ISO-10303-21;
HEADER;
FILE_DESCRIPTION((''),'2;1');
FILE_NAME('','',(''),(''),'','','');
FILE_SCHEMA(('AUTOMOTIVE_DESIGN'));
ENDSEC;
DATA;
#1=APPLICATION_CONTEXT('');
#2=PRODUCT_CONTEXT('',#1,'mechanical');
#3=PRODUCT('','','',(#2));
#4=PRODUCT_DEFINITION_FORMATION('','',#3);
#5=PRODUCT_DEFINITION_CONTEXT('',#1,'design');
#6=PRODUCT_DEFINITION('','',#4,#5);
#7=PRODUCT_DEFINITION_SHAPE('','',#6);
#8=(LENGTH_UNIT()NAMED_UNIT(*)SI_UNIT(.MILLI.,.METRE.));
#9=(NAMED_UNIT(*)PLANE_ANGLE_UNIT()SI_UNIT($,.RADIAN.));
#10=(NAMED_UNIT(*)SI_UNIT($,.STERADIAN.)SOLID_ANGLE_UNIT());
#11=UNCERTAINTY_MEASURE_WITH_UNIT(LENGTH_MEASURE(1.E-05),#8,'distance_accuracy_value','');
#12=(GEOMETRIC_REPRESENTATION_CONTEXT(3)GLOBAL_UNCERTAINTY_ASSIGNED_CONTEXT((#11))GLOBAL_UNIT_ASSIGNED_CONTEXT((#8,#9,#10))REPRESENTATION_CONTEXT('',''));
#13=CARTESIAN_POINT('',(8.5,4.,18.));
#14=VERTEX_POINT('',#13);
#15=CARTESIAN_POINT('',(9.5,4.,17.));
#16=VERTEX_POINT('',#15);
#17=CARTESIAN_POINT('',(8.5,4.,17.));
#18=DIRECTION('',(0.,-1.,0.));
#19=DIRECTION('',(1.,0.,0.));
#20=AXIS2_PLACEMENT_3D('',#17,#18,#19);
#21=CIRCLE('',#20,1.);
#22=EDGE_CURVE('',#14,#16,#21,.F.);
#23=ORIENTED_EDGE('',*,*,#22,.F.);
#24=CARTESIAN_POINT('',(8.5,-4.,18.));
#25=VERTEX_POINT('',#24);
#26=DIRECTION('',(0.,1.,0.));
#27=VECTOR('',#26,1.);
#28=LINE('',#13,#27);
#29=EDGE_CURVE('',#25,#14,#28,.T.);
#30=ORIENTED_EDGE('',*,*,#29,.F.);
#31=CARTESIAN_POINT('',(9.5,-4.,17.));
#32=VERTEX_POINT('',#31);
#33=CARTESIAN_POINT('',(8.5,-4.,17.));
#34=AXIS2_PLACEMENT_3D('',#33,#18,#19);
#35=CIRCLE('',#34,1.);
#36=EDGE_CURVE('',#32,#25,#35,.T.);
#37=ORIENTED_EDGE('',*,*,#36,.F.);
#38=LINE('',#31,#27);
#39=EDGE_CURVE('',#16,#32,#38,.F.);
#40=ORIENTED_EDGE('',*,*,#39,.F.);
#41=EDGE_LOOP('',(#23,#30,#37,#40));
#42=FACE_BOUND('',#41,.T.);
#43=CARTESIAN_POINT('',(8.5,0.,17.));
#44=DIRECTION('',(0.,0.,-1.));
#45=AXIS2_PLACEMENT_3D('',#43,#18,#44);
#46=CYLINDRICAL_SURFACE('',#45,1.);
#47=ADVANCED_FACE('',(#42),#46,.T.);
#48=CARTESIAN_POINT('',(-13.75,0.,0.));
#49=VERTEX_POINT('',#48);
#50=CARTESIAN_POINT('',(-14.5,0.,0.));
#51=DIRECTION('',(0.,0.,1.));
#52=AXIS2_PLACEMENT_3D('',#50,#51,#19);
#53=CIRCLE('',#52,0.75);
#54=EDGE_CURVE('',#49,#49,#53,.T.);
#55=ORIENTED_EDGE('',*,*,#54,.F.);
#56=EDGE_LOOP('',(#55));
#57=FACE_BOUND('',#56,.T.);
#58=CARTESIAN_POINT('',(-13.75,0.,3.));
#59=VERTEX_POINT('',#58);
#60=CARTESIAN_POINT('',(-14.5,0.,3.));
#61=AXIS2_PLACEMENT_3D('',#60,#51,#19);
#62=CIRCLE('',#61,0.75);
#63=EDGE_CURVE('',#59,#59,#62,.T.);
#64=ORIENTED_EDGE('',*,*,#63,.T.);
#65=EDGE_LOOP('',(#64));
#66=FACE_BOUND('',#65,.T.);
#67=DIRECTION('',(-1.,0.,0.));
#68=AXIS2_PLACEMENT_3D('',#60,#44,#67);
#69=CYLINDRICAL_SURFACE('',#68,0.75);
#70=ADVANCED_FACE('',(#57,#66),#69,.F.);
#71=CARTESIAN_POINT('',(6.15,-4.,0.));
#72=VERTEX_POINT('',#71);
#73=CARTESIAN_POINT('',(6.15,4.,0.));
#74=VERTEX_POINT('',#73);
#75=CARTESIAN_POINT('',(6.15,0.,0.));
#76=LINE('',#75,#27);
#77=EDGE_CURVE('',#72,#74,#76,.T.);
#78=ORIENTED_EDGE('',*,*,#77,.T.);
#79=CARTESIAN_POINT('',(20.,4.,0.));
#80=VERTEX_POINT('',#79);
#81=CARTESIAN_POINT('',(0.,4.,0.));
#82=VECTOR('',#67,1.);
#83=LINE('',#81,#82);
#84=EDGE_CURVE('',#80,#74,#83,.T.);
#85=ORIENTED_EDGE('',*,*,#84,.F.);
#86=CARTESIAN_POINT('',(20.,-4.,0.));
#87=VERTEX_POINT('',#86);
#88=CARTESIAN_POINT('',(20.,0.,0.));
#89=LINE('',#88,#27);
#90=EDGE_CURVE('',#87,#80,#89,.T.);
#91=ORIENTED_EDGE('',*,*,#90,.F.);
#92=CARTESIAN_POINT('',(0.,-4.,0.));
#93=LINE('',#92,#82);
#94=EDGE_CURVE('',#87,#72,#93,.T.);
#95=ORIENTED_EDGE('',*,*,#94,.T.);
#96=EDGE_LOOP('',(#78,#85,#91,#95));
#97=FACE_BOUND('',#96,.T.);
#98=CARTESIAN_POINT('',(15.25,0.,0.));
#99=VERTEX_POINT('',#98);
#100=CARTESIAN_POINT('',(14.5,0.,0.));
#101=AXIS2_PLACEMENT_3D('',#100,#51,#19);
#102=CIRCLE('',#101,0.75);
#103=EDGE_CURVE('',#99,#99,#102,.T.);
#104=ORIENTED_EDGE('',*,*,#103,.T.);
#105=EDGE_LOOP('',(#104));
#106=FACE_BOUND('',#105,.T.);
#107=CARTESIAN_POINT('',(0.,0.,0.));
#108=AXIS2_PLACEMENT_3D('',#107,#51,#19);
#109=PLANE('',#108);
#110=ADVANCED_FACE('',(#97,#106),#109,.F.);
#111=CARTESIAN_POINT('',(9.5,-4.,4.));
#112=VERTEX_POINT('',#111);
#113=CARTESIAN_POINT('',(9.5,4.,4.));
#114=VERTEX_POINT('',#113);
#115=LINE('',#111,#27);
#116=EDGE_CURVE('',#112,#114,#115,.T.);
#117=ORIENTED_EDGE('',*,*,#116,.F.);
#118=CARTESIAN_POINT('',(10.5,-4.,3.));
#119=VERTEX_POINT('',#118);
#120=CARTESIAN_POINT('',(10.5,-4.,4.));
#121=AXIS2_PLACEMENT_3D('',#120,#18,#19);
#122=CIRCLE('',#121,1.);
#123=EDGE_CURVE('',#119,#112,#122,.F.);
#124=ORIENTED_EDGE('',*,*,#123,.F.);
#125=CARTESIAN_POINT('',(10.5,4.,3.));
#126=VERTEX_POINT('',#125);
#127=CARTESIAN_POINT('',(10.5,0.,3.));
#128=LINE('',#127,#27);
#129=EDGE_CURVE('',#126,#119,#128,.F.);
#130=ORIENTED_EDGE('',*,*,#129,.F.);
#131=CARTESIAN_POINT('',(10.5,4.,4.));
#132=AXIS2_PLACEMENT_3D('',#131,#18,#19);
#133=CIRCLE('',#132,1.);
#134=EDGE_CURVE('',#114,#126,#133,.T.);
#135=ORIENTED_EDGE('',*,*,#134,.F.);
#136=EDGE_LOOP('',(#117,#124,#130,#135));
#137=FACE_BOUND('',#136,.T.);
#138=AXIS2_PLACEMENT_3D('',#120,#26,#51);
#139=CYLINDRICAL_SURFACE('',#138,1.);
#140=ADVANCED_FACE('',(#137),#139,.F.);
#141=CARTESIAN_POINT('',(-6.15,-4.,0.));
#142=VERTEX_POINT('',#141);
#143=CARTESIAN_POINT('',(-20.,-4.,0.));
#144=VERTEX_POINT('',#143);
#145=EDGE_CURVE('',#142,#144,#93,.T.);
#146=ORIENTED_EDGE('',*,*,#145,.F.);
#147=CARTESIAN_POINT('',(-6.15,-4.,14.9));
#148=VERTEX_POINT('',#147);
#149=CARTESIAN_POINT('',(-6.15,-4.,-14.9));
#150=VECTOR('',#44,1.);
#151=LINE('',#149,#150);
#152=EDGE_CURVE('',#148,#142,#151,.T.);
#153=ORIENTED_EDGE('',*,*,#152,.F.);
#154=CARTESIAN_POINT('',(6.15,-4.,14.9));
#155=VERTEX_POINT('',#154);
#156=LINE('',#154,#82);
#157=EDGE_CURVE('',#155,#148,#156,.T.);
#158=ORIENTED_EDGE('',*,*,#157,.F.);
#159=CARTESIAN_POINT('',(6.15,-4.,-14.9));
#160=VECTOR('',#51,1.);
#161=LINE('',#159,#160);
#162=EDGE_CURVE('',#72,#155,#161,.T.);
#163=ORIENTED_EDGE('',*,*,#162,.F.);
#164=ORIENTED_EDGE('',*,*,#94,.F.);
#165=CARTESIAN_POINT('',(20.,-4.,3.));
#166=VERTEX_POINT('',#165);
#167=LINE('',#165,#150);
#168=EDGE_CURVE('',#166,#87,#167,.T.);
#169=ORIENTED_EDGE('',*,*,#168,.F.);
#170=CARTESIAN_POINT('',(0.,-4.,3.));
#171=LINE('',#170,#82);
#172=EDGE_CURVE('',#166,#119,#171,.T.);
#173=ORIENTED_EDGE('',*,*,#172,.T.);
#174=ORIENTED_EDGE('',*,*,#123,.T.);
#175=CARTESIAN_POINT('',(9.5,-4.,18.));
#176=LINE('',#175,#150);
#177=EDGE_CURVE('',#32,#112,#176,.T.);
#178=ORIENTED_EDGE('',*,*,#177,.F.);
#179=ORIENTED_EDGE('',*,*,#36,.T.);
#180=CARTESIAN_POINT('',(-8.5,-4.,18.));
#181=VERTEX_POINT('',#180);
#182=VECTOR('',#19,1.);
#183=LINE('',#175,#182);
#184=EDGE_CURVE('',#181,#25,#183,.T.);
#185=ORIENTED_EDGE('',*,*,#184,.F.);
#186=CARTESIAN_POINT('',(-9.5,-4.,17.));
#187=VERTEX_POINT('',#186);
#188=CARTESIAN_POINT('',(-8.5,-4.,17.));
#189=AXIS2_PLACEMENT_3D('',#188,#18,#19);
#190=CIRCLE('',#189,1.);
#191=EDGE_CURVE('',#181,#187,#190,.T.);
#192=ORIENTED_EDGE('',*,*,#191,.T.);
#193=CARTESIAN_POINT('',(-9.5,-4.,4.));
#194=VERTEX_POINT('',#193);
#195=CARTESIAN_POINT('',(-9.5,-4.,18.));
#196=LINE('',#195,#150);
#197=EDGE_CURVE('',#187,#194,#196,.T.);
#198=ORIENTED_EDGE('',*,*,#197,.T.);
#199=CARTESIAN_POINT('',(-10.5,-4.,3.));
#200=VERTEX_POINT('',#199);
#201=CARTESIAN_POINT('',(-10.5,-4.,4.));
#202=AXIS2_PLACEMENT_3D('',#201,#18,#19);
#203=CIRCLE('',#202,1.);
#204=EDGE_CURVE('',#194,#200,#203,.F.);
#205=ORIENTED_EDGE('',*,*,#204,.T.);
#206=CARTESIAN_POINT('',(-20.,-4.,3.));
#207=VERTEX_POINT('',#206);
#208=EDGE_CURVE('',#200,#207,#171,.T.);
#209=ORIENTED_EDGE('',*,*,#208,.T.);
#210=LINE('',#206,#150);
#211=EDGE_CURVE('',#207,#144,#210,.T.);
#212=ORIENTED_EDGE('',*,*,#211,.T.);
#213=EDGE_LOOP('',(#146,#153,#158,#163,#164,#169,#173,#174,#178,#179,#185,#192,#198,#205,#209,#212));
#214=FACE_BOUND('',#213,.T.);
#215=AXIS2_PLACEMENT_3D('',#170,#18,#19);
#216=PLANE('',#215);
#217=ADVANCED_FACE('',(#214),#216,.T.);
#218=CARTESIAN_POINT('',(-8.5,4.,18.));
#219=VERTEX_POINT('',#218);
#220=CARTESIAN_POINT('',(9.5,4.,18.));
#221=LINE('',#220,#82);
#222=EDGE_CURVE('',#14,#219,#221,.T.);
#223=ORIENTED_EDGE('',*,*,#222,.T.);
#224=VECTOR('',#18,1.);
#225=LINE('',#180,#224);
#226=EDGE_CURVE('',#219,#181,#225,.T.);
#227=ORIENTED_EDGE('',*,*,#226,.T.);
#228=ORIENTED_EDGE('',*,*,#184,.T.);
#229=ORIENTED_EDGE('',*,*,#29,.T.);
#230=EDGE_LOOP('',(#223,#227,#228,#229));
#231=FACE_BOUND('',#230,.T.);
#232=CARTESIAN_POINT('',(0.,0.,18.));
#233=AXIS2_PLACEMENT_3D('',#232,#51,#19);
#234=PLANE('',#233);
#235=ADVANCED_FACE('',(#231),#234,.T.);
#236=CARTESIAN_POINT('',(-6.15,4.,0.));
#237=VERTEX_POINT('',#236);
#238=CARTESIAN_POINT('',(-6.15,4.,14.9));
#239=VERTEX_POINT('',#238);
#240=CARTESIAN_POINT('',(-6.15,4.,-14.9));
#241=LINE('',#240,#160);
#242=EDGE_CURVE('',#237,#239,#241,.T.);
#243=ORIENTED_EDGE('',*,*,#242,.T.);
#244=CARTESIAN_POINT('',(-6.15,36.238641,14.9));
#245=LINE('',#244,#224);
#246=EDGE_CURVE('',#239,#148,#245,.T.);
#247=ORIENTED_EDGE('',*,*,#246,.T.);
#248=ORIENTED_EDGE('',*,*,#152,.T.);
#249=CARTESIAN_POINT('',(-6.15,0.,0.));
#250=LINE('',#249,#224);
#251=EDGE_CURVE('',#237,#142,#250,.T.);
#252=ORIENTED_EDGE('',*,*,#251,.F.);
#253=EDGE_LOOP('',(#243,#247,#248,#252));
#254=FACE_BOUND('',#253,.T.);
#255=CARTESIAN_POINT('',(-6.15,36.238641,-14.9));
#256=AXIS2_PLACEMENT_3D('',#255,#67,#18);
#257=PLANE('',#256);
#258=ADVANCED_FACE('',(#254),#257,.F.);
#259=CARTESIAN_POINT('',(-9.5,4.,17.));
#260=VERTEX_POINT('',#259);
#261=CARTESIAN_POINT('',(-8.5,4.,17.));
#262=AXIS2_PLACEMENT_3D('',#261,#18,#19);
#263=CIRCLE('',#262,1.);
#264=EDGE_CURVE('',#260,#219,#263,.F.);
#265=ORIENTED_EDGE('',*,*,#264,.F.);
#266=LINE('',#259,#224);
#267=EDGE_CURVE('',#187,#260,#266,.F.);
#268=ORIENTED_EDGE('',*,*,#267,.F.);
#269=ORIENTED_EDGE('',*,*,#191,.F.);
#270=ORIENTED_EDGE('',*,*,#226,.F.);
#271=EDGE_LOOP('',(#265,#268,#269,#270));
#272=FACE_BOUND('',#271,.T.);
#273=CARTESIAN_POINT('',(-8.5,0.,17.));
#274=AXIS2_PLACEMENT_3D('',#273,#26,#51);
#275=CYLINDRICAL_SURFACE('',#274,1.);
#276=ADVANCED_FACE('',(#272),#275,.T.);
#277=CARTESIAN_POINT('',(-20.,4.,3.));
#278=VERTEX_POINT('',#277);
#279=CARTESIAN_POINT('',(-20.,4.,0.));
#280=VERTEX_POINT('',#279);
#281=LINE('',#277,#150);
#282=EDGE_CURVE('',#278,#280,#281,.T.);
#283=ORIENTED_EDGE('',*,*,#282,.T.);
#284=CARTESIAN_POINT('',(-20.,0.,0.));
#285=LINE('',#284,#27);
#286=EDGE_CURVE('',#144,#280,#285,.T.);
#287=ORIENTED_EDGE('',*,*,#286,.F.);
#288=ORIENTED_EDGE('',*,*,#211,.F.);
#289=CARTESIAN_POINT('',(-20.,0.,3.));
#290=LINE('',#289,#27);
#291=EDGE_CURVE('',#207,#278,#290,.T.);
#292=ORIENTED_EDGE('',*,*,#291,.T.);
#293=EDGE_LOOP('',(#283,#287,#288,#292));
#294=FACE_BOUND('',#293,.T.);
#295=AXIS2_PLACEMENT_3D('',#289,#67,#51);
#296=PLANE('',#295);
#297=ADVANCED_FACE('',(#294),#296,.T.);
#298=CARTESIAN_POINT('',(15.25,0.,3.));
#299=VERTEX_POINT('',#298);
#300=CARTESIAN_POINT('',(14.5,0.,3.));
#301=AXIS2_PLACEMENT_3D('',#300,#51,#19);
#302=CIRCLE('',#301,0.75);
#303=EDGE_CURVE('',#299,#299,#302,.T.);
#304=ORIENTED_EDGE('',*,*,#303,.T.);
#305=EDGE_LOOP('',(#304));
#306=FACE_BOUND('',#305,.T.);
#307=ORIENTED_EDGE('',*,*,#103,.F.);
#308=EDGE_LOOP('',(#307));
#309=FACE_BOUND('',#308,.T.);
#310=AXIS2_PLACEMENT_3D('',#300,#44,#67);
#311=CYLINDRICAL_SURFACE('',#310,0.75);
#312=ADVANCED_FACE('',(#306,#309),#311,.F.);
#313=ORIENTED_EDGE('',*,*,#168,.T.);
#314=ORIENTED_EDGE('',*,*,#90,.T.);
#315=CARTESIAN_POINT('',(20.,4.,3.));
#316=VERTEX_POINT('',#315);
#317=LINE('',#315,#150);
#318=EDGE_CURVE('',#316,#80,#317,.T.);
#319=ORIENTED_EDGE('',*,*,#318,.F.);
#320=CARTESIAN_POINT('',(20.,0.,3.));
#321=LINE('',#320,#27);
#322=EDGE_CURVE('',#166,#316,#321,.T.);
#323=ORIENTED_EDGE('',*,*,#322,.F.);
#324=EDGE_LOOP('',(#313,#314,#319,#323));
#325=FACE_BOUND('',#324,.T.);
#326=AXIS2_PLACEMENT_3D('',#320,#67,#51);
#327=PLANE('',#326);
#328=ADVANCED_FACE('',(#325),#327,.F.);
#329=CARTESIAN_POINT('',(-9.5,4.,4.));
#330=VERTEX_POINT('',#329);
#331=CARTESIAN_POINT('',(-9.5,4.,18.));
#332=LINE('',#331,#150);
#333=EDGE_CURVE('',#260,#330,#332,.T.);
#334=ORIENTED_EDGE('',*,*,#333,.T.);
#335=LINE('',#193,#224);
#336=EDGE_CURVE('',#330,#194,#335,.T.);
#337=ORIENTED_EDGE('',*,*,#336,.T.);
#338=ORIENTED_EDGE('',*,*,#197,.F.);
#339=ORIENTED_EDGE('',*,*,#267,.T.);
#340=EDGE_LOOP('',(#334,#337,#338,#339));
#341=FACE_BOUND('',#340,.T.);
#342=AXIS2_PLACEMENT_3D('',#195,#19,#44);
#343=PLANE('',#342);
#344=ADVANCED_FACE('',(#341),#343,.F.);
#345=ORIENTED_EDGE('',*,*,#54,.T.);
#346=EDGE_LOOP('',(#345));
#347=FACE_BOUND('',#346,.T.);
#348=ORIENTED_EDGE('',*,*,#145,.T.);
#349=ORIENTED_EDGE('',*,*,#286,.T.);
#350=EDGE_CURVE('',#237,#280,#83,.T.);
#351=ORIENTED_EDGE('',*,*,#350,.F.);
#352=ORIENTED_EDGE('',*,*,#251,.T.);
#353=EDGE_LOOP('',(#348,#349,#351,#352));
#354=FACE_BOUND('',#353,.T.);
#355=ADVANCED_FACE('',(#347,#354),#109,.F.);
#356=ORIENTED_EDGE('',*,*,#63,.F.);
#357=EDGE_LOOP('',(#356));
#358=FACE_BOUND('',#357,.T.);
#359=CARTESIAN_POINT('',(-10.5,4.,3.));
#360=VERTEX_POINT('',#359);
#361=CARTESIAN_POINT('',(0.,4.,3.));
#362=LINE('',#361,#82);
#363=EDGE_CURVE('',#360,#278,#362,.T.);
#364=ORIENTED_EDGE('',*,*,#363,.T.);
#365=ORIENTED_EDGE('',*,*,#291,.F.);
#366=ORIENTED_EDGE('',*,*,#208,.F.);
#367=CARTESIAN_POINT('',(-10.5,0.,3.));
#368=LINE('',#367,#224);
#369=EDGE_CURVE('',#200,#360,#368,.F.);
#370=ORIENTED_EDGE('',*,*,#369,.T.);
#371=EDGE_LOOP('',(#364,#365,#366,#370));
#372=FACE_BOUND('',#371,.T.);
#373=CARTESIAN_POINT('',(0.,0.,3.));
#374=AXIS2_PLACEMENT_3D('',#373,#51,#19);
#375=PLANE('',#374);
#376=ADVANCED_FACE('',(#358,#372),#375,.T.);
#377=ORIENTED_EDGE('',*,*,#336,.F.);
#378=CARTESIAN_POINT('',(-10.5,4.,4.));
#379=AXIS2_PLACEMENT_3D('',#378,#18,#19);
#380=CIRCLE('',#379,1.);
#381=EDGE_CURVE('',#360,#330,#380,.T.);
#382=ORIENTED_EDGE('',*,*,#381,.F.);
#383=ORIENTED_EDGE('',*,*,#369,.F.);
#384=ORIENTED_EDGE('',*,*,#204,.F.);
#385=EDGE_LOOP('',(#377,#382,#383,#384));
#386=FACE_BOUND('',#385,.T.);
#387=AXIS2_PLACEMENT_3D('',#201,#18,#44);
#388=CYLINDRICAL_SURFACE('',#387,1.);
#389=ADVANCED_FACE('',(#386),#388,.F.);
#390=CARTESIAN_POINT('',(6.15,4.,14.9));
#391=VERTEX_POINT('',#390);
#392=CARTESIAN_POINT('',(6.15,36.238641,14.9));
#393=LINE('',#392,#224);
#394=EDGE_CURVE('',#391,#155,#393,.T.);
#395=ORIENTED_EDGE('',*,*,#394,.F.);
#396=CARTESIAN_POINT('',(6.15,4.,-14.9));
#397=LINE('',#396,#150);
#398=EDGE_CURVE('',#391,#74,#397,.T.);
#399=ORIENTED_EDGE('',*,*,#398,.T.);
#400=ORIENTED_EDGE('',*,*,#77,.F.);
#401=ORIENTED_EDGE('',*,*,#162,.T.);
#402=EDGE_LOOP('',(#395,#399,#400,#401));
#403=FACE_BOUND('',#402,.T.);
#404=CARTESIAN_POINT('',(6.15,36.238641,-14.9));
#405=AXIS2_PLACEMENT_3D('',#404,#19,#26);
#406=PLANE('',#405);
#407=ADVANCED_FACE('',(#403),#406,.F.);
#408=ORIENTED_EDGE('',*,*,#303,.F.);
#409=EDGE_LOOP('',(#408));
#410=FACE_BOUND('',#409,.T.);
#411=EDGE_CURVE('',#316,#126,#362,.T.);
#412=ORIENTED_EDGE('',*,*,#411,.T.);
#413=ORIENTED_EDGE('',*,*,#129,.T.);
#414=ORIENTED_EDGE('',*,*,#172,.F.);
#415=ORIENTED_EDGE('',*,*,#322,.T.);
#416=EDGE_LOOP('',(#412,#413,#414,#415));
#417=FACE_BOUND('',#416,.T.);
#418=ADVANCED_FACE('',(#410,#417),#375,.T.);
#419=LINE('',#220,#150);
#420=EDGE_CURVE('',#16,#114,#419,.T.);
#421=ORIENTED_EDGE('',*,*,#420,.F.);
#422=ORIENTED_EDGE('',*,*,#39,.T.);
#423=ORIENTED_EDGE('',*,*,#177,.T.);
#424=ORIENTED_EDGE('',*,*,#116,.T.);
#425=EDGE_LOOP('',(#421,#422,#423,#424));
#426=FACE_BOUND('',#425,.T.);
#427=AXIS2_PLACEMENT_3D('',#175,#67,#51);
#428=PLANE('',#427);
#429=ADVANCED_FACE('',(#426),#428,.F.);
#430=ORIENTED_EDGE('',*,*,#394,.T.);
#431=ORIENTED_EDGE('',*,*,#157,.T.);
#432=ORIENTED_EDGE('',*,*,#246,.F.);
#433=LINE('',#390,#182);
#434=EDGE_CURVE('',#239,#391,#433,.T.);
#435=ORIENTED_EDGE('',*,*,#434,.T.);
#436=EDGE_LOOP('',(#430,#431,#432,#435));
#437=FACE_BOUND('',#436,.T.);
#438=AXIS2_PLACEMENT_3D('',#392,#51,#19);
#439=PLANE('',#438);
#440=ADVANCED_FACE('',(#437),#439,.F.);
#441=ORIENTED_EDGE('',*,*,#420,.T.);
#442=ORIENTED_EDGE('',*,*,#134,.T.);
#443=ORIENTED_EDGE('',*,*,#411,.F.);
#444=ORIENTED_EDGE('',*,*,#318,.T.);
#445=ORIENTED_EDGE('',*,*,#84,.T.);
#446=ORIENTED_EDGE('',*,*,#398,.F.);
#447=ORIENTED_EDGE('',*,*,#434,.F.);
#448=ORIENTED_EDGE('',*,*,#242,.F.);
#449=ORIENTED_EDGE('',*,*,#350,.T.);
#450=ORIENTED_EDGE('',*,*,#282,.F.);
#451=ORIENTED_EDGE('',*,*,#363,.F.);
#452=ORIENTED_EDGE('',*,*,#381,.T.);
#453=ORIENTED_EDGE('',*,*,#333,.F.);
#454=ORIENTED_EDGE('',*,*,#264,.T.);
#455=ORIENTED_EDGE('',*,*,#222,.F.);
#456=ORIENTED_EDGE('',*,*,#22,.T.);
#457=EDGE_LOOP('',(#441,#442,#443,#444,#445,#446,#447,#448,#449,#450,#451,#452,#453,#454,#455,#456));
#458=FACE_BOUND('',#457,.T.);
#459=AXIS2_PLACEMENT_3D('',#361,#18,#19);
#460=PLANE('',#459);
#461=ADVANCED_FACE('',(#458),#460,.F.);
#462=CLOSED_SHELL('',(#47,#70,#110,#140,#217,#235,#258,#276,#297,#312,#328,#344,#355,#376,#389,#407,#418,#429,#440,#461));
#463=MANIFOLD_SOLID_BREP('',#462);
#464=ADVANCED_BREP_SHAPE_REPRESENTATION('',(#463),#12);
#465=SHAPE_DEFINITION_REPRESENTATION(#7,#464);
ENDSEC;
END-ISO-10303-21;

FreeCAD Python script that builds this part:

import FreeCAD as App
import Part
import Sketcher

V = App.Vector


def edges_at(feature, points):
    """Names of the edges that pass closest to the given points."""
    edges = feature.Shape.Edges
    near = lambda p: min(range(len(edges)), key=lambda i: edges[i].distToShape(Part.Vertex(*p))[0])
    return sorted({f"Edge{near(p) + 1}" for p in points})


def add_polygon(sketch, points):
    """Adds a closed chain of lines whose ends are joined by coincident constraints."""
    first, n = sketch.GeometryCount, len(points)
    for a, b in zip(points, points[1:] + points[:1]):
        sketch.addGeometry(Part.LineSegment(App.Vector(*a, 0), App.Vector(*b, 0)), False)
    for i in range(n):
        sketch.addConstraint(Sketcher.Constraint("Coincident", first + i, 2, first + (i + 1) % n, 1))

doc = App.newDocument("Part")
body = doc.addObject("PartDesign::Body", "Body")

# Sketch on XY plane
sketch1 = body.newObject("Sketcher::SketchObject", "Sketch")
sketch1.AttachmentSupport = (doc.getObject("XY_Plane"), [""])
sketch1.MapMode = "FlatFace"
add_polygon(sketch1, [(-20, 4), (-20, -4), (20, -4), (20, 4)])  # lines 0-3
sketch1.addGeometry(Part.Circle(V(-14.5, 0, 0), V(0, 0, 1), 0.8), False)  # 4
sketch1.addGeometry(Part.Circle(V(14.5, 0, 0), V(0, 0, 1), 0.8), False)  # 5
sketch1.addConstraint(Sketcher.Constraint("Vertical", 0))
sketch1.addConstraint(Sketcher.Constraint("Horizontal", 1))
sketch1.addConstraint(Sketcher.Constraint("Vertical", 2))
sketch1.addConstraint(Sketcher.Constraint("Horizontal", 3))
sketch1.addConstraint(Sketcher.Constraint("Equal", 4, 5))
sketch1.addConstraint(Sketcher.Constraint("Symmetric", 4, 3, 5, 3, -1, 1))
sketch1.addConstraint(Sketcher.Constraint("Symmetric", 0, 2, 2, 2, -1, 1))
sketch1.addConstraint(Sketcher.Constraint("PointOnObject", 4, 3, -1))
sketch1.addConstraint(Sketcher.Constraint("Diameter", 4, 1.5))
sketch1.addConstraint(Sketcher.Constraint("DistanceX", 1, 1, 1, 2, 40.0))
sketch1.addConstraint(Sketcher.Constraint("DistanceY", 0, 2, 0, 1, 8.0))
sketch1.addConstraint(Sketcher.Constraint("DistanceX", 4, 3, 5, 3, 29.0))
pad1 = body.newObject("PartDesign::Pad", "Pad")
pad1.Profile = sketch1
pad1.Length = 3

# Sketch on XY plane
sketch2 = body.newObject("Sketcher::SketchObject", "Sketch001")
sketch2.AttachmentSupport = (doc.getObject("XY_Plane"), [""])
sketch2.MapMode = "FlatFace"
sketch2.AttachmentOffset = App.Placement(V(0, 0, 3), App.Rotation())
add_polygon(sketch2, [(-10, 4), (-10, -4), (10, -4), (10, 4)])  # lines 0-3
sketch2.addConstraint(Sketcher.Constraint("Vertical", 0))
sketch2.addConstraint(Sketcher.Constraint("Horizontal", 1))
sketch2.addConstraint(Sketcher.Constraint("Vertical", 2))
sketch2.addConstraint(Sketcher.Constraint("Horizontal", 3))
sketch2.addConstraint(Sketcher.Constraint("Symmetric", 0, 2, 2, 2, -1, 1))
sketch2.addConstraint(Sketcher.Constraint("DistanceX", 1, 1, 1, 2, 19.0))
sketch2.addConstraint(Sketcher.Constraint("DistanceY", 0, 2, 0, 1, 8.0))
pad2 = body.newObject("PartDesign::Pad", "Pad001")
pad2.Profile = sketch2
pad2.Length = 15

# Sketch on XZ plane
sketch3 = body.newObject("Sketcher::SketchObject", "Sketch002")
sketch3.AttachmentSupport = (doc.getObject("XZ_Plane"), [""])
sketch3.MapMode = "FlatFace"
sketch3.AttachmentOffset = App.Placement(V(0, 0, 4), App.Rotation())
add_polygon(sketch3, [(-6, 15), (-6, -15), (6, -15), (6, 15)])  # lines 0-3
sketch3.addConstraint(Sketcher.Constraint("Vertical", 0))
sketch3.addConstraint(Sketcher.Constraint("Horizontal", 1))
sketch3.addConstraint(Sketcher.Constraint("Vertical", 2))
sketch3.addConstraint(Sketcher.Constraint("Horizontal", 3))
sketch3.addConstraint(Sketcher.Constraint("Symmetric", 0, 2, 2, 2, -1, 1))
sketch3.addConstraint(Sketcher.Constraint("DistanceX", 1, 1, 1, 2, 12.3))
sketch3.addConstraint(Sketcher.Constraint("DistanceY", 0, 2, 0, 1, 29.8))
pocket1 = body.newObject("PartDesign::Pocket", "Pocket")
pocket1.Profile = sketch3
pocket1.Length = 8
doc.recompute()

fillet = body.newObject("PartDesign::Fillet", "Fillet")
fillet.Base = (pocket1, edges_at(pocket1, [
    (-9.5, 0, 3),
    (9.5, 0, 3),
    (-9.5, 0, 18),
    (9.5, 0, 18),
]))
fillet.Radius = 1

doc.recompute()
